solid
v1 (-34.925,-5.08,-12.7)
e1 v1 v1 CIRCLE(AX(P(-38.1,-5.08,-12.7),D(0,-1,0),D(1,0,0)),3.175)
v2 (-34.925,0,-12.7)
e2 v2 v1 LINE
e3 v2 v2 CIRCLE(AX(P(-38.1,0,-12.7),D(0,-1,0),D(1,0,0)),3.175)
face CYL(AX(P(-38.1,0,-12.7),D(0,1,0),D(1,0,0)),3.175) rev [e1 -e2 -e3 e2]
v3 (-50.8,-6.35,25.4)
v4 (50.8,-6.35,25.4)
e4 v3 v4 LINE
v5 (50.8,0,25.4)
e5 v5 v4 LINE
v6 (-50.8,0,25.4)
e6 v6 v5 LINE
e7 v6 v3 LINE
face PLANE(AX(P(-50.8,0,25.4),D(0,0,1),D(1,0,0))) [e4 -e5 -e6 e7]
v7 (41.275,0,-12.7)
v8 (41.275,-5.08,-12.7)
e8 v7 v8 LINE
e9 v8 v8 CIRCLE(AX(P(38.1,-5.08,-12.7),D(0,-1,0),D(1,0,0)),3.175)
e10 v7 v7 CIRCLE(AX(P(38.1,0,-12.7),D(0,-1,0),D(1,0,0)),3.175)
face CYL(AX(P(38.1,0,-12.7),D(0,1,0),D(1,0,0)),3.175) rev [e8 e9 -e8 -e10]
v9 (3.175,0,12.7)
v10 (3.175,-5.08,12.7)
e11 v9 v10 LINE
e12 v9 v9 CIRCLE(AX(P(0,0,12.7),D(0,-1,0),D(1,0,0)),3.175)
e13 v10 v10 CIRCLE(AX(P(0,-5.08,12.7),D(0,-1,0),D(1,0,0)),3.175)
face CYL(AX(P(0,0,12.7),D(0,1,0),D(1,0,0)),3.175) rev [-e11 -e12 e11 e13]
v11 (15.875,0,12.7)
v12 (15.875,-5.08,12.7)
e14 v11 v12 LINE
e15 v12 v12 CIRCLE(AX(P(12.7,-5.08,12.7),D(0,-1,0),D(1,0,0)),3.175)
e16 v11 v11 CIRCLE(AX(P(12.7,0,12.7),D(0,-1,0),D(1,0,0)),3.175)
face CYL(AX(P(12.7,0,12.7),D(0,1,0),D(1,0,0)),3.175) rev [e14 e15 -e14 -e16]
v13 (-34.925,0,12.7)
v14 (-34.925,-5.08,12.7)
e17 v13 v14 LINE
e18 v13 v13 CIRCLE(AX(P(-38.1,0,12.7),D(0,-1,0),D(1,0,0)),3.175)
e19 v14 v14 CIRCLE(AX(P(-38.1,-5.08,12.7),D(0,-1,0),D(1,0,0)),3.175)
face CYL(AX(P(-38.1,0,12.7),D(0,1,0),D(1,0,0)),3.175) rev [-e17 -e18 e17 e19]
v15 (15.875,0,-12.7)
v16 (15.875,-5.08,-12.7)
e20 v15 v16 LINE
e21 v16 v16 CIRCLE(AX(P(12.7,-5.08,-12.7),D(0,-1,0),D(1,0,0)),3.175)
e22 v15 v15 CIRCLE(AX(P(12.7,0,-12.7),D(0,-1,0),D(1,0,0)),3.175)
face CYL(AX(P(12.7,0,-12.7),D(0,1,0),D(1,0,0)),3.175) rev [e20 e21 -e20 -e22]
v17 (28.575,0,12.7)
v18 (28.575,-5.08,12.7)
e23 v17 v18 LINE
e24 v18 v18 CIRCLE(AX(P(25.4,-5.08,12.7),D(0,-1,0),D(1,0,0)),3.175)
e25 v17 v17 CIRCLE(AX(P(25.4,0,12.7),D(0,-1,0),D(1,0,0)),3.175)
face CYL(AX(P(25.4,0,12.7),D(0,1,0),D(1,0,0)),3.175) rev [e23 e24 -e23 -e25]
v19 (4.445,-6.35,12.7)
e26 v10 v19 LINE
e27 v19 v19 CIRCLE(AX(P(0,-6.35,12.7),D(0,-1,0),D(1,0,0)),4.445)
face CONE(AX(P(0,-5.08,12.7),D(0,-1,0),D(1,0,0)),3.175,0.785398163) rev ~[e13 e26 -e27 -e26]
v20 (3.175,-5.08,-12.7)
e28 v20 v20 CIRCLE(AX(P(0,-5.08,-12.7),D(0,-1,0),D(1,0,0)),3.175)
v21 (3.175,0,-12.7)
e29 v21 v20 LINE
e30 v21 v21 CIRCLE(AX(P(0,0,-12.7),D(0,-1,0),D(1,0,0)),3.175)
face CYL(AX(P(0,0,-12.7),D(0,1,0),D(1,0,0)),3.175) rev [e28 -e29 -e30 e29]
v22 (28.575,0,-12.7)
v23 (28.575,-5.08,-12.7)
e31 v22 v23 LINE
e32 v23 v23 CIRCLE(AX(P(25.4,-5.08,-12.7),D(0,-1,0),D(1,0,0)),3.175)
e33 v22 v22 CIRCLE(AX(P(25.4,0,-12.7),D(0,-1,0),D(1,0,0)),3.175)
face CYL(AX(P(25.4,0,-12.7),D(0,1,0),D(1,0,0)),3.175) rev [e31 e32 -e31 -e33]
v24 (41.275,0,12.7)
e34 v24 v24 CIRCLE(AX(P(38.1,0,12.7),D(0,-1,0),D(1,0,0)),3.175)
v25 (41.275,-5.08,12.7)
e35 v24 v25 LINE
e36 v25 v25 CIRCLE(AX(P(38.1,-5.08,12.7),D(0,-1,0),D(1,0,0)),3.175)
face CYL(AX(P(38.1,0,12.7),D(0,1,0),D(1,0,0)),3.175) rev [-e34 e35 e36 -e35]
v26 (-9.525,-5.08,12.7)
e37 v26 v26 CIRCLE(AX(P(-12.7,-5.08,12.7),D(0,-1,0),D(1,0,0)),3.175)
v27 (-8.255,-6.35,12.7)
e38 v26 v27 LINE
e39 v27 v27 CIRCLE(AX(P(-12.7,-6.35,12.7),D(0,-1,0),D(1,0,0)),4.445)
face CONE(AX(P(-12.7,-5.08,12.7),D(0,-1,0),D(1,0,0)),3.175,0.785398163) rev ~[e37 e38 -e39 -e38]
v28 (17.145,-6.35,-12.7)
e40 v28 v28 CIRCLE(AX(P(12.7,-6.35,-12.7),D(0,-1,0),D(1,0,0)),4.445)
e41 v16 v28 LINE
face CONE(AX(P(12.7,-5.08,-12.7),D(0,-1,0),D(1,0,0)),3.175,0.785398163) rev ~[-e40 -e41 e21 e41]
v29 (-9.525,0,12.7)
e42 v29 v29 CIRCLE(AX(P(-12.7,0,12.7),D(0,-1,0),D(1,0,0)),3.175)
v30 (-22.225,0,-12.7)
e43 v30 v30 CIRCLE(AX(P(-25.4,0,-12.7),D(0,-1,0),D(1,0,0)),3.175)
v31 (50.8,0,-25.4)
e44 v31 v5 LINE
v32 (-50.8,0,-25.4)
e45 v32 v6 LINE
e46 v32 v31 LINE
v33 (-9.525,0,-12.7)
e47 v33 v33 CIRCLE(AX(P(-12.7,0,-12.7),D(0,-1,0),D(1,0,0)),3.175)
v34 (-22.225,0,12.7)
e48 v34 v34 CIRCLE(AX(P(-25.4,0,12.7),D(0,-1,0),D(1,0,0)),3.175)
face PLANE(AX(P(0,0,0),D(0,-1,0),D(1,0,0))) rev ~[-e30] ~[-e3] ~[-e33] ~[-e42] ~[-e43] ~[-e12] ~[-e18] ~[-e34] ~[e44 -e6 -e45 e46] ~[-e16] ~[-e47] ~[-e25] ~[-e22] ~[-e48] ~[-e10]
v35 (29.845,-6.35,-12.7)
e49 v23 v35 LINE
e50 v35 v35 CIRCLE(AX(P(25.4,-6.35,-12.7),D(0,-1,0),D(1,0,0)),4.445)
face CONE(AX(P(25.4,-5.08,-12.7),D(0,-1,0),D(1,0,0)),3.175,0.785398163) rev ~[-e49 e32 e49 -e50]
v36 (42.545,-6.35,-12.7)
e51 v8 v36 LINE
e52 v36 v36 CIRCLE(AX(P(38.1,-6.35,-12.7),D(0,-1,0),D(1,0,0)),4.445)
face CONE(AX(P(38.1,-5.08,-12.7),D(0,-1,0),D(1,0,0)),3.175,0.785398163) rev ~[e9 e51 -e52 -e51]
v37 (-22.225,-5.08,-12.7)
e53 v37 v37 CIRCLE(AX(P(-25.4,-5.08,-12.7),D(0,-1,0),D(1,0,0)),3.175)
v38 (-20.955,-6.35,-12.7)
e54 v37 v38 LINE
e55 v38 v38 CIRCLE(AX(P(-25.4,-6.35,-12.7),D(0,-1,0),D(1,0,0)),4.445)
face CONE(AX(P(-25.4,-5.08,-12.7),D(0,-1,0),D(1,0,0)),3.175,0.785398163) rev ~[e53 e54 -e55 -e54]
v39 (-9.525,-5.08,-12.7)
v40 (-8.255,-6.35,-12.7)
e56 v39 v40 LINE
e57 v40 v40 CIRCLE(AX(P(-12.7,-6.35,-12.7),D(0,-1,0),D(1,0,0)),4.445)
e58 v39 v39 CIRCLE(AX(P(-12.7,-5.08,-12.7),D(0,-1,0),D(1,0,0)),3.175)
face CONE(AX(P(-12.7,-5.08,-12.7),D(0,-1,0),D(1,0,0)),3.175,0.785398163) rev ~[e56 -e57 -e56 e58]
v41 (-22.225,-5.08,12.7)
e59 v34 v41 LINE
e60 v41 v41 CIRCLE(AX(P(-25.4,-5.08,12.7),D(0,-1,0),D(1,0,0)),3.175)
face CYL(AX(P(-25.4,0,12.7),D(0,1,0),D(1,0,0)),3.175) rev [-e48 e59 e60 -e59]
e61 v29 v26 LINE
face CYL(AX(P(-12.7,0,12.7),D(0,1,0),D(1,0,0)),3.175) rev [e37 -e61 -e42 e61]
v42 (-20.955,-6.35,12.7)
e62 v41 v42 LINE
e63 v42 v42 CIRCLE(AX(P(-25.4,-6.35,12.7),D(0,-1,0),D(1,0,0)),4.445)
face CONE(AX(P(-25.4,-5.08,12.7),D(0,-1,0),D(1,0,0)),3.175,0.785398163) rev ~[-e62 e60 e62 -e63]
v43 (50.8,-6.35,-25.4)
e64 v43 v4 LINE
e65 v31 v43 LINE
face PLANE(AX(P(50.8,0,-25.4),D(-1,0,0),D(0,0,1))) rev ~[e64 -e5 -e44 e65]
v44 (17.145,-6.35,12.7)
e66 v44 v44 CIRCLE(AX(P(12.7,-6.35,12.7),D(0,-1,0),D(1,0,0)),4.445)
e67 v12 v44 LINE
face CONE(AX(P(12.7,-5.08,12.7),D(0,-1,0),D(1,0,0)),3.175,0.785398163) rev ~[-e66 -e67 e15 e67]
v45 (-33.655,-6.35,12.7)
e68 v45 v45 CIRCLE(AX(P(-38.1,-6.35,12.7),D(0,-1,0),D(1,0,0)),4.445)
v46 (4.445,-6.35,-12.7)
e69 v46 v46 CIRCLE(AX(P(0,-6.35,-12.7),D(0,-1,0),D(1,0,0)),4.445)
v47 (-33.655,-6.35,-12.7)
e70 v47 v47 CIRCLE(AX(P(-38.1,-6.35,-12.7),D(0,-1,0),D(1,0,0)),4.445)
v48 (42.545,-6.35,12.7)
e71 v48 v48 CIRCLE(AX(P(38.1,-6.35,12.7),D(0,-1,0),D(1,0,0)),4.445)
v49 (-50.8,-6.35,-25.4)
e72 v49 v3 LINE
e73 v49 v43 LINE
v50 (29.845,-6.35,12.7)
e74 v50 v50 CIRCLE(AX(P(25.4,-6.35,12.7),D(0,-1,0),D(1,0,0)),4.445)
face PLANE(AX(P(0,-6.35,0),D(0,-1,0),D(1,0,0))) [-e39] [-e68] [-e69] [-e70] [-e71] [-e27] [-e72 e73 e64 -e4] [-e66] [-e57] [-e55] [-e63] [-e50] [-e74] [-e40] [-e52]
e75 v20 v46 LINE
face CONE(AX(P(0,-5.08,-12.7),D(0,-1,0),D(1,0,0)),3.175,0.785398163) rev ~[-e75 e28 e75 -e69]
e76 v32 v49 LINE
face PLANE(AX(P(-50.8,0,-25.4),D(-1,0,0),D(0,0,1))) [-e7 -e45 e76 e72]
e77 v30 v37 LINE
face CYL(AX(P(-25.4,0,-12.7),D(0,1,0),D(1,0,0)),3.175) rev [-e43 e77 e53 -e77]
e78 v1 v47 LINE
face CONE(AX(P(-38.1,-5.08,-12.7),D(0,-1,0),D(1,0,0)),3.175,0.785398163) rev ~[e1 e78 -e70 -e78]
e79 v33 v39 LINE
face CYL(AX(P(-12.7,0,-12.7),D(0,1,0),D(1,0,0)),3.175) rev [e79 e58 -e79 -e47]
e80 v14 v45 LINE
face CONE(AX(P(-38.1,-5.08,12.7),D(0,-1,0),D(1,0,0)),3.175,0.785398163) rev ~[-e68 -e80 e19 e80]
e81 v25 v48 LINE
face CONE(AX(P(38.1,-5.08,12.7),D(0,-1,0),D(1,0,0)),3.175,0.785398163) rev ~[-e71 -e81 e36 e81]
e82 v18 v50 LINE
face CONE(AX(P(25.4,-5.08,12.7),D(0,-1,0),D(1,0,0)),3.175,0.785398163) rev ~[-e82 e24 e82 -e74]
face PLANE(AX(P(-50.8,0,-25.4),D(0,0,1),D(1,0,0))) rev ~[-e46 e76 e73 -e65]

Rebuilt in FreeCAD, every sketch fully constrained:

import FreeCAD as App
import Part
import Sketcher
Q = App.Units.Quantity


def edges_at(feature, points):
    """Names of the edges that pass closest to the given points."""
    edges = feature.Shape.Edges
    near = lambda p: min(range(len(edges)), key=lambda i: edges[i].distToShape(Part.Vertex(*p))[0])
    return sorted({f"Edge{near(p) + 1}" for p in points})


def add_polygon(sketch, points):
    """Adds a closed chain of lines whose ends are joined by coincident constraints."""
    first, n = sketch.GeometryCount, len(points)
    for a, b in zip(points, points[1:] + points[:1]):
        sketch.addGeometry(Part.LineSegment(App.Vector(*a, 0), App.Vector(*b, 0)), False)
    for i in range(n):
        sketch.addConstraint(Sketcher.Constraint("Coincident", first + i, 2, first + (i + 1) % n, 1))

doc = App.newDocument("Part")
body = doc.addObject("PartDesign::Body", "Body")

sketch1 = body.newObject("Sketcher::SketchObject", "Sketch")
sketch1.AttachmentSupport = (doc.getObject("XZ_Plane"), [""])
sketch1.MapMode = "FlatFace"
add_polygon(sketch1, [(-50.8, 25.4), (-50.8, -25.4), (50.8, -25.4), (50.8, 25.4)])
sketch1.addGeometry(Part.Circle(App.Vector(-38.1, -12.7, 0), App.Vector(0, 0, 1), 3.175), False)
sketch1.addGeometry(Part.Circle(App.Vector(-25.4, -12.7, 0), App.Vector(0, 0, 1), 3.175), False)
sketch1.addGeometry(Part.Circle(App.Vector(-12.7, -12.7, 0), App.Vector(0, 0, 1), 3.175), False)
sketch1.addGeometry(Part.Circle(App.Vector(0, -12.7, 0), App.Vector(0, 0, 1), 3.175), False)
sketch1.addGeometry(Part.Circle(App.Vector(12.7, -12.7, 0), App.Vector(0, 0, 1), 3.175), False)
sketch1.addGeometry(Part.Circle(App.Vector(25.4, -12.7, 0), App.Vector(0, 0, 1), 3.175), False)
sketch1.addGeometry(Part.Circle(App.Vector(38.1, -12.7, 0), App.Vector(0, 0, 1), 3.175), False)
sketch1.addGeometry(Part.Circle(App.Vector(-38.1, 12.7, 0), App.Vector(0, 0, 1), 3.175), False)
sketch1.addGeometry(Part.Circle(App.Vector(-25.4, 12.7, 0), App.Vector(0, 0, 1), 3.175), False)
sketch1.addGeometry(Part.Circle(App.Vector(-12.7, 12.7, 0), App.Vector(0, 0, 1), 3.175), False)
sketch1.addGeometry(Part.Circle(App.Vector(0, 12.7, 0), App.Vector(0, 0, 1), 3.175), False)
sketch1.addGeometry(Part.Circle(App.Vector(12.7, 12.7, 0), App.Vector(0, 0, 1), 3.175), False)
sketch1.addGeometry(Part.Circle(App.Vector(25.4, 12.7, 0), App.Vector(0, 0, 1), 3.175), False)
sketch1.addGeometry(Part.Circle(App.Vector(38.1, 12.7, 0), App.Vector(0, 0, 1), 3.175), False)
sketch1.addConstraint([
    Sketcher.Constraint("Vertical", 0),
    Sketcher.Constraint("Horizontal", 1),
    Sketcher.Constraint("Vertical", 2),
    Sketcher.Constraint("Horizontal", 3),
    Sketcher.Constraint("Equal", 4, 5),
    Sketcher.Constraint("Equal", 5, 6),
    Sketcher.Constraint("Equal", 6, 7),
    Sketcher.Constraint("Equal", 7, 8),
    Sketcher.Constraint("Equal", 8, 9),
    Sketcher.Constraint("Equal", 9, 10),
    Sketcher.Constraint("Equal", 10, 11),
    Sketcher.Constraint("Equal", 11, 12),
    Sketcher.Constraint("Equal", 12, 13),
    Sketcher.Constraint("Equal", 13, 14),
    Sketcher.Constraint("Equal", 14, 15),
    Sketcher.Constraint("Equal", 15, 16),
    Sketcher.Constraint("Equal", 16, 17),
    Sketcher.Constraint("Symmetric", 10, 3, 11, 3, -1, 1),
    Sketcher.Constraint("Symmetric", 9, 3, 12, 3, -1, 1),
    Sketcher.Constraint("Symmetric", 8, 3, 13, 3, -1, 1),
    Sketcher.Constraint("Symmetric", 7, 3, 14, 3, -1, 1),
    Sketcher.Constraint("Symmetric", 6, 3, 15, 3, -1, 1),
    Sketcher.Constraint("Symmetric", 5, 3, 16, 3, -1, 1),
    Sketcher.Constraint("Symmetric", 4, 3, 17, 3, -1, 1),
    Sketcher.Constraint("Symmetric", 0, 2, 2, 2, -1, 1),
    Sketcher.Constraint("Symmetric", 6, 3, 8, 3, -2),
    Sketcher.Constraint("Symmetric", 5, 3, 9, 3, -2),
    Sketcher.Constraint("Symmetric", 4, 3, 10, 3, -2),
    Sketcher.Constraint("PointOnObject", 7, 3, -2),
    Sketcher.Constraint("Horizontal", 4, 3, 5, 3),
    Sketcher.Constraint("Horizontal", 5, 3, 6, 3),
    Sketcher.Constraint("Horizontal", 6, 3, 7, 3),
    Sketcher.Constraint("Diameter", 4, Q("0.25 in")),
    Sketcher.Constraint("DistanceX", 1, 1, 1, 2, Q("4 in")),
    Sketcher.Constraint("DistanceY", 0, 2, 0, 1, Q("2 in")),
    Sketcher.Constraint("DistanceX", 5, 3, -1, 1, Q("1 in")),
    Sketcher.Constraint("DistanceX", 4, 3, 6, 3, Q("1 in")),
    Sketcher.Constraint("DistanceX", 6, 3, 8, 3, Q("1 in")),
    Sketcher.Constraint("DistanceY", 4, 3, 11, 3, Q("1 in")),
])
pad1 = body.newObject("PartDesign::Pad", "Pad")
pad1.Profile = sketch1
pad1.Length = Q("0.25 in")
doc.recompute()

chamfer = body.newObject("PartDesign::Chamfer", "Chamfer")
chamfer.Base = (pad1, edges_at(pad1, [
    (-41.275, -6.35, 12.7),
    (-28.575, -6.35, 12.7),
    (-15.875, -6.35, 12.7),
    (-3.175, -6.35, 12.7),
    (9.525, -6.35, 12.7),
    (22.225, -6.35, 12.7),
    (34.925, -6.35, 12.7),
    (34.925, -6.35, -12.7),
    (22.225, -6.35, -12.7),
    (9.525, -6.35, -12.7),
    (-3.175, -6.35, -12.7),
    (-15.875, -6.35, -12.7),
    (-41.275, -6.35, -12.7),
    (-28.575, -6.35, -12.7),
]))
chamfer.Size = Q("0.05 in")

doc.recompute()
